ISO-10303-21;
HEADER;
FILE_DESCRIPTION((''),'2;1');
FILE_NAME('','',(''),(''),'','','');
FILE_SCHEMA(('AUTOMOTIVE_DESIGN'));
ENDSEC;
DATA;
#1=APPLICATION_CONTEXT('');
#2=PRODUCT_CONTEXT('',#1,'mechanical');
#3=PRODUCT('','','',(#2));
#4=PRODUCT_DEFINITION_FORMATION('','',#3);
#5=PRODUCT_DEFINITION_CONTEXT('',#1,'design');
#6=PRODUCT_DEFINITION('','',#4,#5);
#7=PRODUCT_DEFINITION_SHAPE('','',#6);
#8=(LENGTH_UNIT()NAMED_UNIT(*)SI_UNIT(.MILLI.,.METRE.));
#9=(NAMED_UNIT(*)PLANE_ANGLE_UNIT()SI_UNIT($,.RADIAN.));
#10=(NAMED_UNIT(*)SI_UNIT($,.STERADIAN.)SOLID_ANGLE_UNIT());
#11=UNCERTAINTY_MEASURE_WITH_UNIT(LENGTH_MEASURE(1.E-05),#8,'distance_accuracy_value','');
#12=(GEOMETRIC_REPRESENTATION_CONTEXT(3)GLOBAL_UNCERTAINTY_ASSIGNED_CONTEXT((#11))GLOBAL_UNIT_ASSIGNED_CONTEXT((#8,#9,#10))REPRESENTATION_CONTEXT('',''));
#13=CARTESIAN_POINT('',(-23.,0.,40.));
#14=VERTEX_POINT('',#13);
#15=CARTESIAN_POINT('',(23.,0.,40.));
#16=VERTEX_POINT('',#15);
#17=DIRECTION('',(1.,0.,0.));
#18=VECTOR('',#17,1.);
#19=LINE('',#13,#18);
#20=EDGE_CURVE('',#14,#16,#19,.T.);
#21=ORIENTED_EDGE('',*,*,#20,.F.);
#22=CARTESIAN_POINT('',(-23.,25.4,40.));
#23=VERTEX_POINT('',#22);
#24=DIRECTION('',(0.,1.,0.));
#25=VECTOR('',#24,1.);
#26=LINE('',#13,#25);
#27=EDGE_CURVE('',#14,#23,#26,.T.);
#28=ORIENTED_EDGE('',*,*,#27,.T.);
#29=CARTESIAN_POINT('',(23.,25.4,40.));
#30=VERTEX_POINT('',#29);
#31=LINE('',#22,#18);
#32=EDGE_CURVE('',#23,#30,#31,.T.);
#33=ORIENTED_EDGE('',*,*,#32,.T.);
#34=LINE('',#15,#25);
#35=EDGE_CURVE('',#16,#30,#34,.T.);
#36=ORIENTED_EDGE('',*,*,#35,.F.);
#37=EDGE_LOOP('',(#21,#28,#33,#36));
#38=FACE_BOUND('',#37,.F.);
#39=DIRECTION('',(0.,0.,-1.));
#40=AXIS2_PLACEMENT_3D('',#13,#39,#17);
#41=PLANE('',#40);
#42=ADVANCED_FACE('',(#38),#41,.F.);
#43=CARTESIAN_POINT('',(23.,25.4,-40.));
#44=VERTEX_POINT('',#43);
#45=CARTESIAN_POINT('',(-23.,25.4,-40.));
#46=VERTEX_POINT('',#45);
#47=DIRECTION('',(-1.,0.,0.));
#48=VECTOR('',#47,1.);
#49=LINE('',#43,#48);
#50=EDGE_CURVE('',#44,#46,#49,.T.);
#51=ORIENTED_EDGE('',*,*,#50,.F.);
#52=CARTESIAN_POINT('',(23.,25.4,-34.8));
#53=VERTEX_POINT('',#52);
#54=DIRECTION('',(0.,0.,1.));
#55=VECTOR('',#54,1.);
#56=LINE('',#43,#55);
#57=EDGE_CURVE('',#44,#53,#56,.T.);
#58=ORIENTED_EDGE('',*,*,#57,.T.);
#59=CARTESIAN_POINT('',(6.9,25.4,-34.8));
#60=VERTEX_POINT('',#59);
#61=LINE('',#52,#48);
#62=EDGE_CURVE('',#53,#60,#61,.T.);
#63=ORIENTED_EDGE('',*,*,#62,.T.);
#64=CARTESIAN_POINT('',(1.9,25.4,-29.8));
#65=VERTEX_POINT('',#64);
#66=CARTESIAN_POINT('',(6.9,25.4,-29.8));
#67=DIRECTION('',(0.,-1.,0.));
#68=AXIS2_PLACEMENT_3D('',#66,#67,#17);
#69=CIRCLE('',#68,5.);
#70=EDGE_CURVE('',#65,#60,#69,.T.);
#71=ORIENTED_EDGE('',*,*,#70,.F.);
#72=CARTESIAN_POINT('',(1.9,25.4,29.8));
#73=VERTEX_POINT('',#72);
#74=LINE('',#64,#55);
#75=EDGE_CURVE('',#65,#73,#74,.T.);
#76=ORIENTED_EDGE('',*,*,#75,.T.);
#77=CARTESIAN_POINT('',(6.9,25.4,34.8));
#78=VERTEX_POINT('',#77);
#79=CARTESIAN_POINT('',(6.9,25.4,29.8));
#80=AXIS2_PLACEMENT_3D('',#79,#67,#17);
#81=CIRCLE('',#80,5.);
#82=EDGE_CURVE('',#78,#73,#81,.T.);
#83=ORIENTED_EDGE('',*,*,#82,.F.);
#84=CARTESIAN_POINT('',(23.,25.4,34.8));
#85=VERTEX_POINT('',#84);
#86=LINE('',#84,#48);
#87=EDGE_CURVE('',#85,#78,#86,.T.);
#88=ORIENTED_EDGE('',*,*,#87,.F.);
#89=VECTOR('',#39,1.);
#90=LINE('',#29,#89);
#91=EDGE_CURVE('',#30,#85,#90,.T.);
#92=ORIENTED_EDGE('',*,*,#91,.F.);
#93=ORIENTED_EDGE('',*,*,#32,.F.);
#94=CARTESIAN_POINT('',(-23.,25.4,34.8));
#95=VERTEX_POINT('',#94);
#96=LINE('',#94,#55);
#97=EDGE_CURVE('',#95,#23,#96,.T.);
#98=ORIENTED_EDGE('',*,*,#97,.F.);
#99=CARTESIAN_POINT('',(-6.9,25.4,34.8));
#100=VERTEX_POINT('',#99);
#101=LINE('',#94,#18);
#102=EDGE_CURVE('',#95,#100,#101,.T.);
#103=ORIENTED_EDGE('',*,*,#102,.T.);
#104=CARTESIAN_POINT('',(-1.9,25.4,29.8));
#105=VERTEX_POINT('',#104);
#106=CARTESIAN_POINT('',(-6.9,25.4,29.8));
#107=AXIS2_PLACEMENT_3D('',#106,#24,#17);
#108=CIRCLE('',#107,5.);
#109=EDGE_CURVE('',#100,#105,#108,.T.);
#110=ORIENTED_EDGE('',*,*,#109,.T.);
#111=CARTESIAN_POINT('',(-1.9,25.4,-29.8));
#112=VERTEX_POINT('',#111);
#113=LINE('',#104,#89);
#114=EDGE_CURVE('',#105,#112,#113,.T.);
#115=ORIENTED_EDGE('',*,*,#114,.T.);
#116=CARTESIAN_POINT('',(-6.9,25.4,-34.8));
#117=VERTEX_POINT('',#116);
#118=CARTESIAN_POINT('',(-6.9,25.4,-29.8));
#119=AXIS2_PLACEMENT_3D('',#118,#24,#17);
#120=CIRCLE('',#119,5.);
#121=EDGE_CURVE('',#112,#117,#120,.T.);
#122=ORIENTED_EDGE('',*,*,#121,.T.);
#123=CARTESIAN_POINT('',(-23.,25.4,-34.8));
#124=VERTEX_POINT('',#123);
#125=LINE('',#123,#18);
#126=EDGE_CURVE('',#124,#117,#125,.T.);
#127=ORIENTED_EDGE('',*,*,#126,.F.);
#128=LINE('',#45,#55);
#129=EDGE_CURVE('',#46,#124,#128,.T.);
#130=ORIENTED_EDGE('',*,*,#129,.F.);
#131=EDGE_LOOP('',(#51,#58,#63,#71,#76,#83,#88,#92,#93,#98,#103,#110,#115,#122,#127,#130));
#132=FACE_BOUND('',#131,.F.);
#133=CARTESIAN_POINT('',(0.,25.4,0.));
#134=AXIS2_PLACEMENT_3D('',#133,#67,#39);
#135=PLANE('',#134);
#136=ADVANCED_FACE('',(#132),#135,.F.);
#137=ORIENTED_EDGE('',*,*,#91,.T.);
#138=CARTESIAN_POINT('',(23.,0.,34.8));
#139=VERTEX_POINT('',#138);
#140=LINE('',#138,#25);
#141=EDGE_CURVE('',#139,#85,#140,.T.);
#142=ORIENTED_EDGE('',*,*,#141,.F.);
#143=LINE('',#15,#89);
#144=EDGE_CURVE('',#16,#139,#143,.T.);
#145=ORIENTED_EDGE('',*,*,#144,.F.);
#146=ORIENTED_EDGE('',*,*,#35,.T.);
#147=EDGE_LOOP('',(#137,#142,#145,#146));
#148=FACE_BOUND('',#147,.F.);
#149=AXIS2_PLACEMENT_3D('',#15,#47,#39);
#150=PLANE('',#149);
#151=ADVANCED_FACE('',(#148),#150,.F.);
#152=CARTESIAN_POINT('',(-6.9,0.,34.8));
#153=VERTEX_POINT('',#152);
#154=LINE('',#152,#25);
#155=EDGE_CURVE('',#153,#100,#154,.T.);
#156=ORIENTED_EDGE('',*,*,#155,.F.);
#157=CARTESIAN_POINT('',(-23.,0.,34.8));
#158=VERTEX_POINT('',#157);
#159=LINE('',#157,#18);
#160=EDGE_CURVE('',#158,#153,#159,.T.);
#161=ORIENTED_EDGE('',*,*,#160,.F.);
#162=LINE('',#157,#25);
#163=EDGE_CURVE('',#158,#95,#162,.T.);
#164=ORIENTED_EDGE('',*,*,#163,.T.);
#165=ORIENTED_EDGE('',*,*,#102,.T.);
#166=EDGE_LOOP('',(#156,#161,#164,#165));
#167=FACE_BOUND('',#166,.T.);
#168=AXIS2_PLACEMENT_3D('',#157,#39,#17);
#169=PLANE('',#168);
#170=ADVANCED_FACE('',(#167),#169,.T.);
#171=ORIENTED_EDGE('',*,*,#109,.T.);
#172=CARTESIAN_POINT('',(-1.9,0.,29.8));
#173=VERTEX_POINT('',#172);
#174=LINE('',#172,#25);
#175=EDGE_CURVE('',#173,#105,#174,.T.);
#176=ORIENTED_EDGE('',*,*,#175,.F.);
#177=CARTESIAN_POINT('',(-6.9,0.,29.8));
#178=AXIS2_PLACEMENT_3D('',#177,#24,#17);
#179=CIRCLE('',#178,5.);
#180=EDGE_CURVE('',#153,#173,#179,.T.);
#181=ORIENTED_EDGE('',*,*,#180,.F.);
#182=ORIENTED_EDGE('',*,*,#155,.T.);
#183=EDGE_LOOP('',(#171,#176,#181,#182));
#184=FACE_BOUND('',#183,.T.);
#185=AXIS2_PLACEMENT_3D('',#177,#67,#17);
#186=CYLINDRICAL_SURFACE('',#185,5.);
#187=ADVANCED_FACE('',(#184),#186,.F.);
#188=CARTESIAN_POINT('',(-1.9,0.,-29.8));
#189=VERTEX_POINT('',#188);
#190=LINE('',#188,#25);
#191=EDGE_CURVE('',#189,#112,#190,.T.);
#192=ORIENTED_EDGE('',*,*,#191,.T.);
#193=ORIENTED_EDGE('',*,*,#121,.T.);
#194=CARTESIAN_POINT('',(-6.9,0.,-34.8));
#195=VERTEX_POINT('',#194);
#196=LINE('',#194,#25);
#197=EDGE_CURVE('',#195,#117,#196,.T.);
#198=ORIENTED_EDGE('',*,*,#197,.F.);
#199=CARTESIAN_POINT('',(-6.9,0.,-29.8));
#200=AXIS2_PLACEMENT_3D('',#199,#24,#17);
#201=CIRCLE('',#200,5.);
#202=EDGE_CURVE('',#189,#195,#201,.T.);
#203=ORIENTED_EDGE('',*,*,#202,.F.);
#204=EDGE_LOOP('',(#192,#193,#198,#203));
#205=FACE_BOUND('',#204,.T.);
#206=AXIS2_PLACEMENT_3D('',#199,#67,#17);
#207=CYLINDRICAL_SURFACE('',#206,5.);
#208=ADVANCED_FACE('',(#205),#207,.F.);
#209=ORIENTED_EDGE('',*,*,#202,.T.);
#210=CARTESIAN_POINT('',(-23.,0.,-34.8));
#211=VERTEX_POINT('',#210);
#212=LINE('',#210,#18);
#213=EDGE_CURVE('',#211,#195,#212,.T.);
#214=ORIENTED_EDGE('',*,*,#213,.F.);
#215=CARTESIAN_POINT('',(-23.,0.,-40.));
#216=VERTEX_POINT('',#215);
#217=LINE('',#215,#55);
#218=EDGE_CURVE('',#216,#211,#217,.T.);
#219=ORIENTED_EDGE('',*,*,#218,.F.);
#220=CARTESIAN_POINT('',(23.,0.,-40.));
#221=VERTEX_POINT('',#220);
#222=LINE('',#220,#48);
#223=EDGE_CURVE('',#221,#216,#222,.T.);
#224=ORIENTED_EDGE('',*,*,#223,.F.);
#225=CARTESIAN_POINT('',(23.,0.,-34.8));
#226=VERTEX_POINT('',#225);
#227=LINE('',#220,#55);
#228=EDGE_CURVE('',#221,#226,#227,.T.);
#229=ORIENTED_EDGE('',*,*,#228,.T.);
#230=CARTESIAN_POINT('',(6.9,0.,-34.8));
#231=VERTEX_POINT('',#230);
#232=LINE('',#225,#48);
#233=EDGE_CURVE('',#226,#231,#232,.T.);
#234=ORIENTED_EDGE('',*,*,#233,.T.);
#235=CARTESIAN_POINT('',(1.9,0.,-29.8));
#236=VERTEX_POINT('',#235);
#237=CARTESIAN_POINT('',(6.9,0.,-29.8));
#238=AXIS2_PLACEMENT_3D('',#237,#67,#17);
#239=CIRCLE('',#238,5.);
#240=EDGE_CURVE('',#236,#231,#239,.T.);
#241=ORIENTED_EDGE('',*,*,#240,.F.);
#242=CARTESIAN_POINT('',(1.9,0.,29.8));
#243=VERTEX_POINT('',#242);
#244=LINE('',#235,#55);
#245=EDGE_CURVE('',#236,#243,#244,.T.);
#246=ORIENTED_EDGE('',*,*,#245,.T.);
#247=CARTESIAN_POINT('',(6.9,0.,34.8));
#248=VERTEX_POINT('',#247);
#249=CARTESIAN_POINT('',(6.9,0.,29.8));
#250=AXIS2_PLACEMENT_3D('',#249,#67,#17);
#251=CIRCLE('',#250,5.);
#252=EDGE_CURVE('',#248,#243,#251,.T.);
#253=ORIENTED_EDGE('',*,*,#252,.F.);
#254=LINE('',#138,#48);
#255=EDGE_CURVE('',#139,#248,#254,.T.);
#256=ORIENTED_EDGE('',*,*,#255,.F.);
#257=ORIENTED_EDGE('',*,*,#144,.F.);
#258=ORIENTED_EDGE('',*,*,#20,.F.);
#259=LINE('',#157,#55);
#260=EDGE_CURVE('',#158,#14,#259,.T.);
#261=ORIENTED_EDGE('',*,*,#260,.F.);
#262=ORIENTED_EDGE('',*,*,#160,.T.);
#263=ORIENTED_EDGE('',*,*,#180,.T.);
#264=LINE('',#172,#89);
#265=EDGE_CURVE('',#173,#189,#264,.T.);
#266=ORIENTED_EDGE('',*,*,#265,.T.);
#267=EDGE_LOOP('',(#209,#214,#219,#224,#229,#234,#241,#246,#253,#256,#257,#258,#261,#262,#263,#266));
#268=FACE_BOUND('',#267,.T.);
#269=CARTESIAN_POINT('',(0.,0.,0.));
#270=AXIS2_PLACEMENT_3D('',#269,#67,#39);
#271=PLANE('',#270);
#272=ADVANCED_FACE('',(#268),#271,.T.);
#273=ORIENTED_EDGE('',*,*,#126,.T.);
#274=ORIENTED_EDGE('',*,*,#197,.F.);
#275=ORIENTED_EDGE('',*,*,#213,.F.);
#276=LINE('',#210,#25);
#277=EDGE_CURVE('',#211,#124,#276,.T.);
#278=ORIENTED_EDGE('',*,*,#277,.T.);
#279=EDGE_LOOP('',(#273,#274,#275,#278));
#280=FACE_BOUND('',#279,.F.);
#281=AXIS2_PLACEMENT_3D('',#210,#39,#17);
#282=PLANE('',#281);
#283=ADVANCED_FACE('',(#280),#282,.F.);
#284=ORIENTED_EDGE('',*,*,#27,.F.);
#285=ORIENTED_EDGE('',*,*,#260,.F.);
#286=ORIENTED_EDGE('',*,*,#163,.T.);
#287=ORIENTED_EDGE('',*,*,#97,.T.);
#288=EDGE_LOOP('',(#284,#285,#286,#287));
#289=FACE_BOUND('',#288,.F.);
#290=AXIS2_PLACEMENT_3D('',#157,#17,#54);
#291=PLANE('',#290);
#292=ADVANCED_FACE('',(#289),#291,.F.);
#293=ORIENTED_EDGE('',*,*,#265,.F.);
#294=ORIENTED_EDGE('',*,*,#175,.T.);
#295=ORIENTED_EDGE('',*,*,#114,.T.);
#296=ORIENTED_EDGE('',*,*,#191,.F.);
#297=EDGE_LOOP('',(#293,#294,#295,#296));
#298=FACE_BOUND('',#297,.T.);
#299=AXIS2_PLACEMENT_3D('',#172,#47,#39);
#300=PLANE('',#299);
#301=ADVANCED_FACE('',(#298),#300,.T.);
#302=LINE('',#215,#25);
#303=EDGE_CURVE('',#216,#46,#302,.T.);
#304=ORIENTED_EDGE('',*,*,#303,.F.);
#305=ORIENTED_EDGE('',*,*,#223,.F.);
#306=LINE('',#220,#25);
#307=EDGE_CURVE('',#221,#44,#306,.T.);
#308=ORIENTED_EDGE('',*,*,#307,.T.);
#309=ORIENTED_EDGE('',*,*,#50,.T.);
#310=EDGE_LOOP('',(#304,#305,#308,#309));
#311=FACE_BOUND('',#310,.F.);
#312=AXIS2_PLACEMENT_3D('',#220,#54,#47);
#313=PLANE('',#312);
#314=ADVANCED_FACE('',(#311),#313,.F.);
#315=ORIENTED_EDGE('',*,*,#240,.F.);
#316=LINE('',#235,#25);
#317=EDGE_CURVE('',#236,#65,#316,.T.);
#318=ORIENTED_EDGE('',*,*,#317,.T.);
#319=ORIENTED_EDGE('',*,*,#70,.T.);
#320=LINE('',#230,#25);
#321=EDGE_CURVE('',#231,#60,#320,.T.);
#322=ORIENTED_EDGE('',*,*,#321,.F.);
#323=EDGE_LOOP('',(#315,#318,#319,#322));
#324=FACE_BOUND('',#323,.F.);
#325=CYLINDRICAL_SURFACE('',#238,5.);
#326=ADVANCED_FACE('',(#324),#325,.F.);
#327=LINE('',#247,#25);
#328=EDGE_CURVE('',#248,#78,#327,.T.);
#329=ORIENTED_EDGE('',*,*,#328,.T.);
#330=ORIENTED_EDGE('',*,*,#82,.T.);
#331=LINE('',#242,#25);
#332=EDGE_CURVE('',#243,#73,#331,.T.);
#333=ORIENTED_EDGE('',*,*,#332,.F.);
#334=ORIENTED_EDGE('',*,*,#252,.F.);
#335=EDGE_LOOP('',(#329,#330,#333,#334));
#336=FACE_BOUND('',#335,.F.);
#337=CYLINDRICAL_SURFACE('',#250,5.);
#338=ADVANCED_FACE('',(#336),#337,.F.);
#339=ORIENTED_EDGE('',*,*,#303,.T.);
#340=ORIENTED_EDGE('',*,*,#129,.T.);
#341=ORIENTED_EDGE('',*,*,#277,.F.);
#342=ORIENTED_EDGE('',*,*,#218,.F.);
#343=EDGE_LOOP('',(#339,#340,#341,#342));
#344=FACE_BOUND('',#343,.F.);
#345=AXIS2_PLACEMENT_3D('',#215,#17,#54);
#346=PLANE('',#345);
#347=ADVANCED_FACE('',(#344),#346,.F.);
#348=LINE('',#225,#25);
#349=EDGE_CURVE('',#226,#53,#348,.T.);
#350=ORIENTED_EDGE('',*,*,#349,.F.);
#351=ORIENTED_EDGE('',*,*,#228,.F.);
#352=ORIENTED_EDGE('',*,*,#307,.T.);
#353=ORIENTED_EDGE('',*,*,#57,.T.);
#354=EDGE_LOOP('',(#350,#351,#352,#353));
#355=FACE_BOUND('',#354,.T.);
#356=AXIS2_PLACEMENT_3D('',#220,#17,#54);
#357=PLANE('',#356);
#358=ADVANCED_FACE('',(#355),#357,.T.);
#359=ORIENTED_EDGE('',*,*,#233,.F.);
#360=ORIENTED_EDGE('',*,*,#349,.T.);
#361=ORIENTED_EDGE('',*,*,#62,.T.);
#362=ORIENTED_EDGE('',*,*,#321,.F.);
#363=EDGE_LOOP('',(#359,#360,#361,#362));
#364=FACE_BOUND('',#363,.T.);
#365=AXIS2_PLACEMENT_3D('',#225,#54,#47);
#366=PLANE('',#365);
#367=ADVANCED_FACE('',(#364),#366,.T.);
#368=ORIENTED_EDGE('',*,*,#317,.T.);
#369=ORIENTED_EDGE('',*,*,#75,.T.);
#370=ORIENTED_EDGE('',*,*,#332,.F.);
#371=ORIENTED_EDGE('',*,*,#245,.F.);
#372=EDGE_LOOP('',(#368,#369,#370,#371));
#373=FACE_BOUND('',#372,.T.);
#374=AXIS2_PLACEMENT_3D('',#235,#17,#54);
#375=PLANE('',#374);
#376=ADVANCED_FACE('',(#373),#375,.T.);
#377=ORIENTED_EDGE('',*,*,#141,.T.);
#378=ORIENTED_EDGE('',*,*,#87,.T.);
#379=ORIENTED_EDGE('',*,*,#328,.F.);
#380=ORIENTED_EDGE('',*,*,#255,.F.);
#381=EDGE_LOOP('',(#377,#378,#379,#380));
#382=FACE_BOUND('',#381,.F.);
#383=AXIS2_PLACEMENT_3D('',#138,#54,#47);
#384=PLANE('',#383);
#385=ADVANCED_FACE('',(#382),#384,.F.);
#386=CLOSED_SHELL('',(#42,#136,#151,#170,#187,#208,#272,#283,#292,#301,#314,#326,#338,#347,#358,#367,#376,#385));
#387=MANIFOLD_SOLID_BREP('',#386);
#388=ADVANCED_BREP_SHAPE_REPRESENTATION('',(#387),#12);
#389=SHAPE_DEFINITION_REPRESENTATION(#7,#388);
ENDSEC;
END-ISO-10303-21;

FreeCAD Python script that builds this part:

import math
import FreeCAD as App
import Part
import Sketcher

doc = App.newDocument("Part")
body = doc.addObject("PartDesign::Body", "Body")

sketch1 = body.newObject("Sketcher::SketchObject", "Sketch")
sketch1.AttachmentSupport = (doc.getObject("XZ_Plane"), [""])
sketch1.MapMode = "FlatFace"
sketch1.addGeometry([
    Part.ArcOfCircle(Part.Circle(App.Vector(-6.9, 29.8, 0), App.Vector(0, 0, 1), 5), math.radians(0), math.radians(90)),
    Part.LineSegment(App.Vector(-1.9, 29.8, 0), App.Vector(-1.9, -29.8, 0)),
    Part.ArcOfCircle(Part.Circle(App.Vector(-6.9, -29.8, 0), App.Vector(0, 0, 1), 5), math.radians(-90), math.radians(0)),
    Part.LineSegment(App.Vector(-6.9, -34.8, 0), App.Vector(-23, -34.8, 0)),
    Part.LineSegment(App.Vector(-23, -34.8, 0), App.Vector(-23, -40, 0)),
    Part.LineSegment(App.Vector(-23, -40, 0), App.Vector(23, -40, 0)),
    Part.LineSegment(App.Vector(23, -40, 0), App.Vector(23, -34.8, 0)),
    Part.LineSegment(App.Vector(23, -34.8, 0), App.Vector(6.9, -34.8, 0)),
    Part.ArcOfCircle(Part.Circle(App.Vector(6.9, -29.8, 0), App.Vector(0, 0, 1), 5), math.radians(180), math.radians(270)),
    Part.LineSegment(App.Vector(1.9, -29.8, 0), App.Vector(1.9, 29.8, 0)),
    Part.ArcOfCircle(Part.Circle(App.Vector(6.9, 29.8, 0), App.Vector(0, 0, 1), 5), math.radians(90), math.radians(180)),
    Part.LineSegment(App.Vector(6.9, 34.8, 0), App.Vector(23, 34.8, 0)),
    Part.LineSegment(App.Vector(23, 34.8, 0), App.Vector(23, 40, 0)),
    Part.LineSegment(App.Vector(23, 40, 0), App.Vector(-23, 40, 0)),
    Part.LineSegment(App.Vector(-23, 40, 0), App.Vector(-23, 34.8, 0)),
    Part.LineSegment(App.Vector(-23, 34.8, 0), App.Vector(-6.9, 34.8, 0)),
], False)
sketch1.addConstraint([
    Sketcher.Constraint("Tangent", 0, 1, 1, 1),
    Sketcher.Constraint("Tangent", 1, 2, 2, 2),
    Sketcher.Constraint("Tangent", 2, 1, 3, 1),
    Sketcher.Constraint("Coincident", 3, 2, 4, 1),
    Sketcher.Constraint("Coincident", 4, 2, 5, 1),
    Sketcher.Constraint("Coincident", 5, 2, 6, 1),
    Sketcher.Constraint("Coincident", 6, 2, 7, 1),
    Sketcher.Constraint("Tangent", 7, 2, 8, 2),
    Sketcher.Constraint("Tangent", 8, 1, 9, 1),
    Sketcher.Constraint("Tangent", 9, 2, 10, 2),
    Sketcher.Constraint("Tangent", 10, 1, 11, 1),
    Sketcher.Constraint("Coincident", 11, 2, 12, 1),
    Sketcher.Constraint("Coincident", 12, 2, 13, 1),
    Sketcher.Constraint("Coincident", 13, 2, 14, 1),
    Sketcher.Constraint("Coincident", 14, 2, 15, 1),
    Sketcher.Constraint("Tangent", 15, 2, 0, 2),
    Sketcher.Constraint("Vertical", 1),
    Sketcher.Constraint("Horizontal", 3),
    Sketcher.Constraint("Vertical", 4),
    Sketcher.Constraint("Horizontal", 5),
    Sketcher.Constraint("Vertical", 6),
    Sketcher.Constraint("Horizontal", 7),
    Sketcher.Constraint("Vertical", 9),
    Sketcher.Constraint("Horizontal", 11),
    Sketcher.Constraint("Vertical", 12),
    Sketcher.Constraint("Horizontal", 13),
    Sketcher.Constraint("Vertical", 14),
    Sketcher.Constraint("Horizontal", 15),
    Sketcher.Constraint("Equal", 0, 2),
    Sketcher.Constraint("Equal", 2, 8),
    Sketcher.Constraint("Equal", 8, 10),
    Sketcher.Constraint("Symmetric", 0, 3, 8, 3, -1, 1),
    Sketcher.Constraint("Symmetric", 3, 2, 11, 2, -1, 1),
    Sketcher.Constraint("Symmetric", 5, 2, 13, 2, -1, 1),
    Sketcher.Constraint("Symmetric", 3, 2, 6, 2, -2),
    Sketcher.Constraint("DistanceX", 3, 2, -1, 1, 23.0),
    Sketcher.Constraint("Radius", 0, 5.0),
    Sketcher.Constraint("DistanceX", 3, 2, 3, 1, 16.1),
    Sketcher.Constraint("DistanceY", 1, 2, 1, 1, 59.6),
    Sketcher.Constraint("DistanceY", 4, 2, 4, 1, 5.2),
])
pad1 = body.newObject("PartDesign::Pad", "Pad")
pad1.Profile = sketch1
pad1.Length = 25.4
pad1.Reversed = True

doc.recompute()
